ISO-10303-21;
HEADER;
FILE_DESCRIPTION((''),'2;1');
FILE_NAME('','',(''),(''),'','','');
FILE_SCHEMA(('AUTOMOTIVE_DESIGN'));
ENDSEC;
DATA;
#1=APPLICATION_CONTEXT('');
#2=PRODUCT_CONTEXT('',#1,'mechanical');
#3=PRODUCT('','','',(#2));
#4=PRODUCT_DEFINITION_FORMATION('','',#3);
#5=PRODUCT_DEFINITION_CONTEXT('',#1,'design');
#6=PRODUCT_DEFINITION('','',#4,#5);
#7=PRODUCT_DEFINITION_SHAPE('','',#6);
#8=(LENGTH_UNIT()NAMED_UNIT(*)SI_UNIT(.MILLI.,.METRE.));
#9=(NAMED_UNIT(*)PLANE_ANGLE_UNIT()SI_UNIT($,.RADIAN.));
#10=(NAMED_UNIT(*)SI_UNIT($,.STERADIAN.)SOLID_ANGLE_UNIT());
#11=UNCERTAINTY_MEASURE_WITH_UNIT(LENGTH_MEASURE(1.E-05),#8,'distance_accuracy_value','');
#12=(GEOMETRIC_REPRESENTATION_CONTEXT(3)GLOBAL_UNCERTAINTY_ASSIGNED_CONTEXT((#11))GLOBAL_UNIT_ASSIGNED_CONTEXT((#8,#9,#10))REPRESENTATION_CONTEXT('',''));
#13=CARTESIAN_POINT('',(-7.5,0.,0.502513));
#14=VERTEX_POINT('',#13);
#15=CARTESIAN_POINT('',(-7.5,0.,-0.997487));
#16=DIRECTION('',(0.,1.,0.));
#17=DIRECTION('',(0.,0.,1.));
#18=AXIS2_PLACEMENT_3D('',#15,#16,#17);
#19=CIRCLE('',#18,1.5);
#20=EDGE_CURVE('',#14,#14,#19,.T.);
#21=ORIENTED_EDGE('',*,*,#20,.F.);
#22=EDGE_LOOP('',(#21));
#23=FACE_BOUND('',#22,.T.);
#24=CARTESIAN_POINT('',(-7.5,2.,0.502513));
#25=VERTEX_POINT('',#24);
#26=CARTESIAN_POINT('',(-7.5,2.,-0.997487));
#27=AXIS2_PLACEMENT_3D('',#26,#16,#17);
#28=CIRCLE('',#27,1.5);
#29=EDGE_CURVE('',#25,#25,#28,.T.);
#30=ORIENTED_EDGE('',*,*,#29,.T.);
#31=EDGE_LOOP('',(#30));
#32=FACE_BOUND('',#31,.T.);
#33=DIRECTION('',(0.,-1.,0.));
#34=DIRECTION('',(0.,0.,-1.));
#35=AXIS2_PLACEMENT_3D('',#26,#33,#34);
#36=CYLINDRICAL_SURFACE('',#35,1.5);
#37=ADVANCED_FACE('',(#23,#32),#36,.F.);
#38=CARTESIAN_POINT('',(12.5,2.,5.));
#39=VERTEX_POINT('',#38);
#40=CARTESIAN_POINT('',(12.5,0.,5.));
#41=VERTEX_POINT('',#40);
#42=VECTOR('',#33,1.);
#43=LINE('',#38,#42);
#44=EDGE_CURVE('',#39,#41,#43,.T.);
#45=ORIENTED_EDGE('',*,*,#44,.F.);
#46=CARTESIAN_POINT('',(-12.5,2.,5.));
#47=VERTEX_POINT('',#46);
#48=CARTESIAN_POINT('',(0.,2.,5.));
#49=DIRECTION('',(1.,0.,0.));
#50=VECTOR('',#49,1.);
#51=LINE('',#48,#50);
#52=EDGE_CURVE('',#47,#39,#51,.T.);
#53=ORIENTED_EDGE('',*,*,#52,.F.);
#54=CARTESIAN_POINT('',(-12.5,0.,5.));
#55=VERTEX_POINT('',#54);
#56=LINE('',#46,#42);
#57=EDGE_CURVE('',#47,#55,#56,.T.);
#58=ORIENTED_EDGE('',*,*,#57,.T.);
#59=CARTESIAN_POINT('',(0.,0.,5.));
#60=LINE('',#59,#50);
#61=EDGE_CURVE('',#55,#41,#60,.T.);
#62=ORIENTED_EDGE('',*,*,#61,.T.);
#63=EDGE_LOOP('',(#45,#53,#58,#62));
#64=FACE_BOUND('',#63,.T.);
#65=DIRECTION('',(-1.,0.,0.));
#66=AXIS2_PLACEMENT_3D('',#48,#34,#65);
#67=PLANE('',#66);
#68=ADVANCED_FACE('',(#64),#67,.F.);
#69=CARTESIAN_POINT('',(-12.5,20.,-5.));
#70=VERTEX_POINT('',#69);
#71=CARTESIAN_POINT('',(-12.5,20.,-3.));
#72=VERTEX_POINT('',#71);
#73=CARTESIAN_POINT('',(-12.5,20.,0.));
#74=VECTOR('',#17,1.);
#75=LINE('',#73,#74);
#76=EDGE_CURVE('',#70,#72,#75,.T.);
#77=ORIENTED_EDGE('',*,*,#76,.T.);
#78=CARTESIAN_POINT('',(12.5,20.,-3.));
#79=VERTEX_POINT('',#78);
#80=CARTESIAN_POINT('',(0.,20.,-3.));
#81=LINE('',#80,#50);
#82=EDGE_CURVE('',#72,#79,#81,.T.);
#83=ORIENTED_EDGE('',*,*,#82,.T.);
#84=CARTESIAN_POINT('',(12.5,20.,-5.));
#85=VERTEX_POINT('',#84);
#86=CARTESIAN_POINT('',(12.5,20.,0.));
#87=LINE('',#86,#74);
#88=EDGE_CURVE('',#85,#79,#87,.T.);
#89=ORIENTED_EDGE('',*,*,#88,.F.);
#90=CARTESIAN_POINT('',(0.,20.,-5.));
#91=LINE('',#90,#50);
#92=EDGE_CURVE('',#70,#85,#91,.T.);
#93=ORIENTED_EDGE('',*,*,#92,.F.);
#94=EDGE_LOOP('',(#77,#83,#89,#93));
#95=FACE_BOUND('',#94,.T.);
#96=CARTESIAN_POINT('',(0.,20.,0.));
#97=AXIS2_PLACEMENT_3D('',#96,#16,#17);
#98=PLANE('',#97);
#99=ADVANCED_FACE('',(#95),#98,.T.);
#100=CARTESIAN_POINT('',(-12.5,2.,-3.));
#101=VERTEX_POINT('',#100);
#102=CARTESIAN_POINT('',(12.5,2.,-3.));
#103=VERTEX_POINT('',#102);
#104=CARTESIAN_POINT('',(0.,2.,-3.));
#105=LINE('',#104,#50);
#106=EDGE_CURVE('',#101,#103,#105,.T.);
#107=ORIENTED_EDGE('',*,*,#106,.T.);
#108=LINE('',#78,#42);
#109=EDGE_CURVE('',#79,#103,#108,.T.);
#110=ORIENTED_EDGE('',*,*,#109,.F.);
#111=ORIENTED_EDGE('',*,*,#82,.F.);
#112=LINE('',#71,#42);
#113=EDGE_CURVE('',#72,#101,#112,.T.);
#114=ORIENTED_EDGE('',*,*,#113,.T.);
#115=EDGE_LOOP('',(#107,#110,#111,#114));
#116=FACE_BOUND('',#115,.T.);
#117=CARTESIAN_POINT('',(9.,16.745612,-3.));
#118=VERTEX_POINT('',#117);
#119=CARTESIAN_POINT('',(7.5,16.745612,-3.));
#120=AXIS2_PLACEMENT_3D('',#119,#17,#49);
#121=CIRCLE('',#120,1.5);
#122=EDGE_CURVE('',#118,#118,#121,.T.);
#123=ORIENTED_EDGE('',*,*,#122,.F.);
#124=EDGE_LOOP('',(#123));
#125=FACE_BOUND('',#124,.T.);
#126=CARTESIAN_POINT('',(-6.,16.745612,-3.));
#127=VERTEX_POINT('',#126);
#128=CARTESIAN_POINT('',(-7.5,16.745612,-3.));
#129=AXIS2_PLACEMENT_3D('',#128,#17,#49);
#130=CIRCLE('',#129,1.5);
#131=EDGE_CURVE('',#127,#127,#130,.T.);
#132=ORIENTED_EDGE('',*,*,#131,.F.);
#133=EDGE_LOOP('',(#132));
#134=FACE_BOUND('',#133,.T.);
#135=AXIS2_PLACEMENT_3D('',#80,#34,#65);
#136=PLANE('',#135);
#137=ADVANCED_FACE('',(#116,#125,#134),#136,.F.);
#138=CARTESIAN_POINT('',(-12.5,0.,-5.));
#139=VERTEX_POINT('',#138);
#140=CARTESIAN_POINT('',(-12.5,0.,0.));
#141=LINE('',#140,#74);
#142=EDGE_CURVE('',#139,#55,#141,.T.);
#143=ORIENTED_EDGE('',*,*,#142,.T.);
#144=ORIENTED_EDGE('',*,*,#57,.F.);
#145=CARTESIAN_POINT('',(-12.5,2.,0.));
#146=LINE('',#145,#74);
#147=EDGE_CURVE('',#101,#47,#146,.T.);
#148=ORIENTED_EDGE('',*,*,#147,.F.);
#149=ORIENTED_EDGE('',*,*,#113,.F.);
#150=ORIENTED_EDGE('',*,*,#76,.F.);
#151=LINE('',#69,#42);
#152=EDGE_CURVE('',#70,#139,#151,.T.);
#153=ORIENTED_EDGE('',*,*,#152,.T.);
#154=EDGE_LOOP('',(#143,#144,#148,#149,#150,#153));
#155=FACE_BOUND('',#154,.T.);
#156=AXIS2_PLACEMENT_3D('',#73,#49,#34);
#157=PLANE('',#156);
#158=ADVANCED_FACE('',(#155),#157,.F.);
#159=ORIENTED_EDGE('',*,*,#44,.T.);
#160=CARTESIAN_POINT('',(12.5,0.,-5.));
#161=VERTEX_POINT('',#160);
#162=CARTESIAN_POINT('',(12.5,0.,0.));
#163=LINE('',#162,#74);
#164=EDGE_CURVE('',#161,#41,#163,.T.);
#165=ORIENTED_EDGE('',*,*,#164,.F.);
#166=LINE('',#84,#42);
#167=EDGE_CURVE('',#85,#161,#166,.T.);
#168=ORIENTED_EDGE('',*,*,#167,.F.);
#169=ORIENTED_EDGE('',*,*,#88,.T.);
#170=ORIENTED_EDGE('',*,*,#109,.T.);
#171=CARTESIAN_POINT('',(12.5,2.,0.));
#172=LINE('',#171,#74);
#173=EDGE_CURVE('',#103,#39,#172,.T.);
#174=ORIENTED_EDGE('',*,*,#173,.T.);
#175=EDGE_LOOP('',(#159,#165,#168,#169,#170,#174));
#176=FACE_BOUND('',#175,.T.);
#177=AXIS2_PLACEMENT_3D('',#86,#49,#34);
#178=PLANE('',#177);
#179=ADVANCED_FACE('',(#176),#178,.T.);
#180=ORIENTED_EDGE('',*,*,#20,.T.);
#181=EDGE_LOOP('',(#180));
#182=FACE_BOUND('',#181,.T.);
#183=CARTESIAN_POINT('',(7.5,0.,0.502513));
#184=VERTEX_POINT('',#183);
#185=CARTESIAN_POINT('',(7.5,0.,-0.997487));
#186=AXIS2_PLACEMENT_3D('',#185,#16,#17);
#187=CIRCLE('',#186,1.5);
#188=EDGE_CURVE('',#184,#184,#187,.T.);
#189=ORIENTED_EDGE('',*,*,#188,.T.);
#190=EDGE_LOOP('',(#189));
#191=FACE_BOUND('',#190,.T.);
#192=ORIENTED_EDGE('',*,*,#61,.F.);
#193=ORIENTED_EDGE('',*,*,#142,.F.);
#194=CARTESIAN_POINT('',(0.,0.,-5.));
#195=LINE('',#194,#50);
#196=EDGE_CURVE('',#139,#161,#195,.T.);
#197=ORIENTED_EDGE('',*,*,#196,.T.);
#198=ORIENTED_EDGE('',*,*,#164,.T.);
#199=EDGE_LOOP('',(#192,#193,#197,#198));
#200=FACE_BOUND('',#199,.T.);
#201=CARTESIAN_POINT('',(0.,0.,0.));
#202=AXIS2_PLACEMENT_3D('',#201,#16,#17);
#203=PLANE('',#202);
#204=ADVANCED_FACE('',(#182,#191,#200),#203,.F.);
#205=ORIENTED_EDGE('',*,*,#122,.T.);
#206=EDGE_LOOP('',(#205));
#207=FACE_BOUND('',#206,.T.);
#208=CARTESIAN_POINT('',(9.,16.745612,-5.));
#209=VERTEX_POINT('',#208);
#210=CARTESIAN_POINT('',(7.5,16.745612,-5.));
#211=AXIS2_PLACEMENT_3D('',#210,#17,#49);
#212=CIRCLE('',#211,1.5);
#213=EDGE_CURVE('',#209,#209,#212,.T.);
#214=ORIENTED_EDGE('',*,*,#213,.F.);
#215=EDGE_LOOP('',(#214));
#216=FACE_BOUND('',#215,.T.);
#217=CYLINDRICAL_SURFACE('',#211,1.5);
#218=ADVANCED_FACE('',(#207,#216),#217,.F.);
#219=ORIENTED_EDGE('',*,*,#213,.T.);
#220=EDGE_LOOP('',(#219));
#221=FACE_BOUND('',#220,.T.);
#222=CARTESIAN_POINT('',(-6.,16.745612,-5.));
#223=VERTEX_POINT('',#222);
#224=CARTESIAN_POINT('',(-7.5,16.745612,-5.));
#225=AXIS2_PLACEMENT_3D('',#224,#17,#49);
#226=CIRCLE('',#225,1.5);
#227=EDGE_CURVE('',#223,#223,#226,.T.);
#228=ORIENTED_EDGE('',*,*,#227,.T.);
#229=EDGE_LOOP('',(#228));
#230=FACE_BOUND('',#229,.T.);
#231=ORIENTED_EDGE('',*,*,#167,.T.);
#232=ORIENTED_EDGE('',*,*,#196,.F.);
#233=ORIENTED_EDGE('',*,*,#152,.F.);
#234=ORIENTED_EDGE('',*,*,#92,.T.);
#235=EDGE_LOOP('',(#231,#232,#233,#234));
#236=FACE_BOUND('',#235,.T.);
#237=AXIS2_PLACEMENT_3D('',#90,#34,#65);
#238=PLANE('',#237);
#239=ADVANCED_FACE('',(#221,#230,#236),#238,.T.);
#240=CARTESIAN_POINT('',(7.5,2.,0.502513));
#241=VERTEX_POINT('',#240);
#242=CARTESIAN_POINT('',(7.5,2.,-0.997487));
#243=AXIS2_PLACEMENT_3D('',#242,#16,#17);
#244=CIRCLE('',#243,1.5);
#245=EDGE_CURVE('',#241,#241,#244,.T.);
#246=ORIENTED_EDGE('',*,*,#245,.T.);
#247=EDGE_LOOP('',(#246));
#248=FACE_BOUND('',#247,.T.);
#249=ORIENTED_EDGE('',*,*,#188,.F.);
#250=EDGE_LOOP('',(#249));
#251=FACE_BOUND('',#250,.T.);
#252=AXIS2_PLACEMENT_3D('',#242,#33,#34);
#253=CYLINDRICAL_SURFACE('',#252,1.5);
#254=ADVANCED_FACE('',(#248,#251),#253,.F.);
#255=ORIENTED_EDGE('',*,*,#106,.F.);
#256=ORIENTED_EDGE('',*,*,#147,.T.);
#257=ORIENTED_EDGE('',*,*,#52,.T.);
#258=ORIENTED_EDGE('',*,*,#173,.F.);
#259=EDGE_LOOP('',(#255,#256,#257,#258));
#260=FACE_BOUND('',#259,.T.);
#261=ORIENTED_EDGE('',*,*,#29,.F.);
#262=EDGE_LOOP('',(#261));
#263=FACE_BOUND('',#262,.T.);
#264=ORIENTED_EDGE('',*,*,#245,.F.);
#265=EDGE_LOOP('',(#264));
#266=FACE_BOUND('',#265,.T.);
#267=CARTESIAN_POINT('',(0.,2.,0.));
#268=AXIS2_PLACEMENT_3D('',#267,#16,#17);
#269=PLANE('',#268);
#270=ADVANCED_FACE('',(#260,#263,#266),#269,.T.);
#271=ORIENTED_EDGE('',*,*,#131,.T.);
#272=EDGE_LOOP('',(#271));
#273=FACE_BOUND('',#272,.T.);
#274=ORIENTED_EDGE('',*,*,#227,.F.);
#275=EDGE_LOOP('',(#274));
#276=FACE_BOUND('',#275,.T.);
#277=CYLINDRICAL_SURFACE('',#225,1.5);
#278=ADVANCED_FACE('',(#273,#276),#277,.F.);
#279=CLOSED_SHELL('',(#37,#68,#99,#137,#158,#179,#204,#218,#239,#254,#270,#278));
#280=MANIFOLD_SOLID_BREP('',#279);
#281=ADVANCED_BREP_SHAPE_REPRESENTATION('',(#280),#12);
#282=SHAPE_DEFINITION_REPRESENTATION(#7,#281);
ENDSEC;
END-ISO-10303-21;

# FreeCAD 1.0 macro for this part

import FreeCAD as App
import Part
import Sketcher


def add_polygon(sketch, points):
    """Adds a closed chain of lines whose ends are joined by coincident constraints."""
    first, n = sketch.GeometryCount, len(points)
    for a, b in zip(points, points[1:] + points[:1]):
        sketch.addGeometry(Part.LineSegment(App.Vector(*a, 0), App.Vector(*b, 0)), False)
    for i in range(n):
        sketch.addConstraint(Sketcher.Constraint("Coincident", first + i, 2, first + (i + 1) % n, 1))

doc = App.newDocument("Part")
body = doc.addObject("PartDesign::Body", "Body")

sketch1 = doc.addObject("Sketcher::SketchObject", "Sketch")
body.addObject(sketch1)
sketch1.AttachmentSupport = (doc.XZ_Plane, [""])
sketch1.MapMode = "FlatFace"
add_polygon(sketch1, [(-12.5, -5), (-12.5, -3), (12.5, -3), (12.5, -5)])
sketch1.addConstraint([
    Sketcher.Constraint("Vertical", 0),
    Sketcher.Constraint("Horizontal", 1),
    Sketcher.Constraint("Vertical", 2),
    Sketcher.Constraint("Horizontal", 3),
    Sketcher.Constraint("DistanceX", 1, 1, 1, 2, 25.0),
    Sketcher.Constraint("DistanceY", 0, 1, 0, 2, 2.0),
    Sketcher.Constraint("DistanceY", 0, 2, -1, 1, 3.0),
    Sketcher.Constraint("DistanceX", 0, 2, -1, 1, 12.5),
])
pad1 = doc.addObject("PartDesign::Pad", "Pad")
body.addObject(pad1)
pad1.Profile = sketch1
pad1.Length = 20
pad1.Reversed = True

sketch2 = doc.addObject("Sketcher::SketchObject", "Sketch001")
body.addObject(sketch2)
sketch2.AttachmentSupport = (doc.XZ_Plane, [""])
sketch2.MapMode = "FlatFace"
add_polygon(sketch2, [(-12.5, -5), (-12.5, 5), (12.5, 5), (12.5, -5)])
sketch2.addGeometry(Part.Circle(App.Vector(-7.5, -0.997487, 0), App.Vector(0, 0, 1), 1.5), False)
sketch2.addGeometry(Part.Circle(App.Vector(7.5, -0.997487, 0), App.Vector(0, 0, 1), 1.5), False)
sketch2.addConstraint([
    Sketcher.Constraint("Vertical", 0),
    Sketcher.Constraint("Horizontal", 1),
    Sketcher.Constraint("Vertical", 2),
    Sketcher.Constraint("Horizontal", 3),
    Sketcher.Constraint("Equal", 4, 5),
    Sketcher.Constraint("Symmetric", 0, 2, 2, 2, -1, 1),
    Sketcher.Constraint("Symmetric", 4, 3, 5, 3, -2),
    Sketcher.Constraint("Diameter", 4, 3.0),
    Sketcher.Constraint("DistanceX", 1, 1, 1, 2, 25.0),
    Sketcher.Constraint("DistanceY", 0, 1, 0, 2, 10.0),
    Sketcher.Constraint("DistanceX", 4, 3, 5, 3, 15.0),
    Sketcher.Constraint("DistanceY", 4, 3, -1, 1, 0.997487),
])
pad2 = doc.addObject("PartDesign::Pad", "Pad001")
body.addObject(pad2)
pad2.Profile = sketch2
pad2.Length = 2
pad2.Reversed = True

sketch3 = doc.addObject("Sketcher::SketchObject", "Sketch002")
body.addObject(sketch3)
sketch3.AttachmentSupport = (doc.XY_Plane, [""])
sketch3.MapMode = "FlatFace"
sketch3.AttachmentOffset = App.Placement(App.Vector(0, 0, -3), App.Rotation())
sketch3.addGeometry([
    Part.Circle(App.Vector(-7.5, 16.745612, 0), App.Vector(0, 0, 1), 1.5),
    Part.Circle(App.Vector(7.5, 16.745612, 0), App.Vector(0, 0, 1), 1.5),
], False)
sketch3.addConstraint([
    Sketcher.Constraint("Equal", 0, 1),
    Sketcher.Constraint("Symmetric", 0, 3, 1, 3, -2),
    Sketcher.Constraint("Diameter", 0, 3.0),
    Sketcher.Constraint("DistanceX", 0, 3, 1, 3, 15.0),
    Sketcher.Constraint("DistanceY", -1, 1, 0, 3, 16.745612),
])
pocket1 = doc.addObject("PartDesign::Pocket", "Pocket")
body.addObject(pocket1)
pocket1.Profile = sketch3
pocket1.Length = 2

doc.recompute()
